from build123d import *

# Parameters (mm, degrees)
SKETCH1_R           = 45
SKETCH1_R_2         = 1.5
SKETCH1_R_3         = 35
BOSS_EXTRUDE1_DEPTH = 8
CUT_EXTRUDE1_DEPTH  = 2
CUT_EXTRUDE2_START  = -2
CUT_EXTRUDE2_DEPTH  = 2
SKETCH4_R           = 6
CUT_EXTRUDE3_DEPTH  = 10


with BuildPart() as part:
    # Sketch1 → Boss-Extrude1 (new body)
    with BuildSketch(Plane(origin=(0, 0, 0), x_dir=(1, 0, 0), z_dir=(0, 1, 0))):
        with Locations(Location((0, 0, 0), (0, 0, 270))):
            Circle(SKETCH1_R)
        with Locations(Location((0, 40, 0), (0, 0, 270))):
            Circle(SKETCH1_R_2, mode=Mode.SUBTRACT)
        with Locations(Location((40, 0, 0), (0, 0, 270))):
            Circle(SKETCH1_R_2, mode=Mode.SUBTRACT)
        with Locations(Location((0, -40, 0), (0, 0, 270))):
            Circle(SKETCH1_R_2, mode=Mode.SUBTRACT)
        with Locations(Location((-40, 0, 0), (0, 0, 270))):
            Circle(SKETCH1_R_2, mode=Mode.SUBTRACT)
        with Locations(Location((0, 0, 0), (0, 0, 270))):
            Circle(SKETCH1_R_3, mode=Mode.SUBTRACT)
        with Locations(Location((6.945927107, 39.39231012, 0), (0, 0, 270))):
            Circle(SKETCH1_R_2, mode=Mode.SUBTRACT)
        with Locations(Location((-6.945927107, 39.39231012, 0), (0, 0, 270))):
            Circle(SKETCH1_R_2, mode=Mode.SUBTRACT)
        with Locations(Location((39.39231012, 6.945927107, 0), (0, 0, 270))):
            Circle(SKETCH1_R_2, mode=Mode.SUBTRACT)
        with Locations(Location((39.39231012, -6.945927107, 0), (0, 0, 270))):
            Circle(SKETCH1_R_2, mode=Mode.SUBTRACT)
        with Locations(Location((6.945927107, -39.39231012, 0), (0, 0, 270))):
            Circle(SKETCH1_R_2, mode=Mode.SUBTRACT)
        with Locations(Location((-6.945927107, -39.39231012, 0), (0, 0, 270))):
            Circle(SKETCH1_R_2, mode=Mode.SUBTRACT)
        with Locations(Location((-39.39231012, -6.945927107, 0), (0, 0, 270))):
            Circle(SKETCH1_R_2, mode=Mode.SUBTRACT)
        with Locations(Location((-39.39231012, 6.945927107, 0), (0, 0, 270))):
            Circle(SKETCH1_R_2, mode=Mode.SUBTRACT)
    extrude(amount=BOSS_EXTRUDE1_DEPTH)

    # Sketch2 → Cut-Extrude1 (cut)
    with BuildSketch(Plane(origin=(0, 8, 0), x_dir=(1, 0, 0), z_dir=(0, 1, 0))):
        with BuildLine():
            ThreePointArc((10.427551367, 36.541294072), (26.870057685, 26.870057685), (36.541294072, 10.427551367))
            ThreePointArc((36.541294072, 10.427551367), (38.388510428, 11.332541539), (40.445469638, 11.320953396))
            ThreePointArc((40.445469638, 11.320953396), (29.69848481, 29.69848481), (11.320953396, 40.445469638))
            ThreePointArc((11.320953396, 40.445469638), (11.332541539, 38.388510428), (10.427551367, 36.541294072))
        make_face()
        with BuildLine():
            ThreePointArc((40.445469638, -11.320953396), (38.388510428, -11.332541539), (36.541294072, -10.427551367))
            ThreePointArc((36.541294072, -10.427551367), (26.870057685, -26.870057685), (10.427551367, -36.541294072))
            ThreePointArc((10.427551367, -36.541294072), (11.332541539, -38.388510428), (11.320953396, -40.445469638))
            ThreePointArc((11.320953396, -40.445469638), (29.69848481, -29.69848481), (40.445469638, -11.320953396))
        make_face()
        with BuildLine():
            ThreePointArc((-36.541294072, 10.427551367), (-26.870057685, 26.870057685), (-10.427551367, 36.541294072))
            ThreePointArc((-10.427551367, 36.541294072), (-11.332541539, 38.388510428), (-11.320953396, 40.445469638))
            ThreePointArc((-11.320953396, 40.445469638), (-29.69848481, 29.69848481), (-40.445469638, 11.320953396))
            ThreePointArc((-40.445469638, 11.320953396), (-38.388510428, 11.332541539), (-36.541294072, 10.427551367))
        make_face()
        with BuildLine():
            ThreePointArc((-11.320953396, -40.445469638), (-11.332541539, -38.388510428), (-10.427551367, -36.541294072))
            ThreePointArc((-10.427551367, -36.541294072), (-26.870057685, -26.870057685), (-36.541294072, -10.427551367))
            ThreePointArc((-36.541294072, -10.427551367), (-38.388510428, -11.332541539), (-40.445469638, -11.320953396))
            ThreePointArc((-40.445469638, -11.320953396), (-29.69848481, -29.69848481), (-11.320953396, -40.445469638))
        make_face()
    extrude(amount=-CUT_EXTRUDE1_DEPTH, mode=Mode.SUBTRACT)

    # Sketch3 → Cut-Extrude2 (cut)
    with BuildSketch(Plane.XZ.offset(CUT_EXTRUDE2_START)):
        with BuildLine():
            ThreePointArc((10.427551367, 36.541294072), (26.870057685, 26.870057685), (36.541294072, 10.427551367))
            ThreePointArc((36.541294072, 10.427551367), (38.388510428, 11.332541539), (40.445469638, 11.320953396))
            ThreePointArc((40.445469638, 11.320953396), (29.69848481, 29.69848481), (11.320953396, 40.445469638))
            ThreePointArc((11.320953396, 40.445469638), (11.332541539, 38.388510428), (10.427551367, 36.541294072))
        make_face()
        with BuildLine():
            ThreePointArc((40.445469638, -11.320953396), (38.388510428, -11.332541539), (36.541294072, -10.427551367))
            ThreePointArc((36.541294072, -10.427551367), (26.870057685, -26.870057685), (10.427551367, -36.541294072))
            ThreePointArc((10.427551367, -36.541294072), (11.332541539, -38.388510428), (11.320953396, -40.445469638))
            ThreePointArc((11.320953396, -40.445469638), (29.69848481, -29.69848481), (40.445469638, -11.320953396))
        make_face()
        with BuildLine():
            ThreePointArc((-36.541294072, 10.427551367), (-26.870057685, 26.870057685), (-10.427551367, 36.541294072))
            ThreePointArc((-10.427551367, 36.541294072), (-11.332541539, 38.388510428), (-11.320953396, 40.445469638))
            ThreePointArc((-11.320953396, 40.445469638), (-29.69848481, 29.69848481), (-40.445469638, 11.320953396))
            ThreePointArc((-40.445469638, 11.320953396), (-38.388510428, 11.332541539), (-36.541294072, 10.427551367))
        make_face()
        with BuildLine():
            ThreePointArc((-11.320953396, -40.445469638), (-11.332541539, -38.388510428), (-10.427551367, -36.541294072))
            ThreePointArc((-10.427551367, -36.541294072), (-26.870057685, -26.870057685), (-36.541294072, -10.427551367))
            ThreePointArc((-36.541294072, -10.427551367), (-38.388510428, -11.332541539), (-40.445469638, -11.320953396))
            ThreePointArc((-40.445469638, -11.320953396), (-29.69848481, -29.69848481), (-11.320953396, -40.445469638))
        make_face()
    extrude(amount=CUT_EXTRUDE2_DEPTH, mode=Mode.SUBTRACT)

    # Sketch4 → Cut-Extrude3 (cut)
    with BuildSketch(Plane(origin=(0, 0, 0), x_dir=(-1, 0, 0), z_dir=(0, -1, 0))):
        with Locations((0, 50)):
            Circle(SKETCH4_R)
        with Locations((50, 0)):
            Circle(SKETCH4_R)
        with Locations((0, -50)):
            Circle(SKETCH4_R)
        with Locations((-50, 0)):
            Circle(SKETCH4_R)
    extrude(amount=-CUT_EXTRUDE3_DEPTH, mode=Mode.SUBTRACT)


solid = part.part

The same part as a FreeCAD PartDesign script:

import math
import FreeCAD as App
import Part
import Sketcher

doc = App.newDocument("Part")
body = doc.addObject("PartDesign::Body", "Body")

sketch1 = body.newObject("Sketcher::SketchObject", "Sketch")
sketch1.AttachmentSupport = (doc.getObject("XZ_Plane"), [""])
sketch1.MapMode = "FlatFace"
sketch1.addGeometry(Part.Circle(App.Vector(0, 0, 0), App.Vector(0, 0, 1), 45), False)
sketch1.addGeometry(Part.Circle(App.Vector(-39.39231, -6.945927, 0), App.Vector(0, 0, 1), 1.5), False)
sketch1.addGeometry(Part.Circle(App.Vector(-6.945927, -39.39231, 0), App.Vector(0, 0, 1), 1.5), False)
sketch1.addGeometry(Part.Circle(App.Vector(0, -40, 0), App.Vector(0, 0, 1), 1.5), False)
sketch1.addGeometry(Part.Circle(App.Vector(-40, 0, 0), App.Vector(0, 0, 1), 1.5), False)
sketch1.addGeometry(Part.Circle(App.Vector(-39.39231, 6.945927, 0), App.Vector(0, 0, 1), 1.5), False)
sketch1.addGeometry(Part.Circle(App.Vector(-6.945927, 39.39231, 0), App.Vector(0, 0, 1), 1.5), False)
sketch1.addGeometry(Part.Circle(App.Vector(6.945927, -39.39231, 0), App.Vector(0, 0, 1), 1.5), False)
sketch1.addGeometry(Part.Circle(App.Vector(39.39231, -6.945927, 0), App.Vector(0, 0, 1), 1.5), False)
sketch1.addGeometry(Part.Circle(App.Vector(40, 0, 0), App.Vector(0, 0, 1), 1.5), False)
sketch1.addGeometry(Part.Circle(App.Vector(0, 0, 0), App.Vector(0, 0, 1), 35), False)
sketch1.addGeometry(Part.Circle(App.Vector(0, 40, 0), App.Vector(0, 0, 1), 1.5), False)
sketch1.addGeometry(Part.Circle(App.Vector(6.945927, 39.39231, 0), App.Vector(0, 0, 1), 1.5), False)
sketch1.addGeometry(Part.Circle(App.Vector(39.39231, 6.945927, 0), App.Vector(0, 0, 1), 1.5), False)
sketch1.addConstraint(Sketcher.Constraint("Coincident", 0, 3, -1, 1))
sketch1.addConstraint(Sketcher.Constraint("Coincident", 10, 3, -1, 1))
sketch1.addConstraint(Sketcher.Constraint("Equal", 1, 2))
sketch1.addConstraint(Sketcher.Constraint("Equal", 2, 3))
sketch1.addConstraint(Sketcher.Constraint("Equal", 3, 4))
sketch1.addConstraint(Sketcher.Constraint("Equal", 4, 5))
sketch1.addConstraint(Sketcher.Constraint("Equal", 5, 6))
sketch1.addConstraint(Sketcher.Constraint("Equal", 6, 7))
sketch1.addConstraint(Sketcher.Constraint("Equal", 7, 8))
sketch1.addConstraint(Sketcher.Constraint("Equal", 8, 9))
sketch1.addConstraint(Sketcher.Constraint("Equal", 9, 11))
sketch1.addConstraint(Sketcher.Constraint("Equal", 11, 12))
sketch1.addConstraint(Sketcher.Constraint("Equal", 12, 13))
sketch1.addConstraint(Sketcher.Constraint("Symmetric", 6, 3, 7, 3, -1, 1))
sketch1.addConstraint(Sketcher.Constraint("Symmetric", 5, 3, 8, 3, -1, 1))
sketch1.addConstraint(Sketcher.Constraint("Symmetric", 4, 3, 9, 3, -1, 1))
sketch1.addConstraint(Sketcher.Constraint("Symmetric", 3, 3, 11, 3, -1, 1))
sketch1.addConstraint(Sketcher.Constraint("Symmetric", 2, 3, 12, 3, -1, 1))
sketch1.addConstraint(Sketcher.Constraint("Symmetric", 1, 3, 13, 3, -1, 1))
sketch1.addConstraint(Sketcher.Constraint("Symmetric", 2, 3, 7, 3, -2))
sketch1.addConstraint(Sketcher.Constraint("Symmetric", 1, 3, 8, 3, -2))
sketch1.addConstraint(Sketcher.Constraint("PointOnObject", 3, 3, -2))
sketch1.addConstraint(Sketcher.Constraint("PointOnObject", 4, 3, -1))
sketch1.addConstraint(Sketcher.Constraint("Diameter", 0, 90.0))
sketch1.addConstraint(Sketcher.Constraint("Diameter", 1, 3.0))
sketch1.addConstraint(Sketcher.Constraint("Diameter", 10, 70.0))
sketch1.addConstraint(Sketcher.Constraint("DistanceY", 3, 3, -1, 1, 40.0))
sketch1.addConstraint(Sketcher.Constraint("DistanceX", 4, 3, -1, 1, 40.0))
sketch1.addConstraint(Sketcher.Constraint("DistanceX", 1, 3, -1, 1, 39.39231))
sketch1.addConstraint(Sketcher.Constraint("DistanceY", 2, 3, -1, 1, 39.39231))
sketch1.addConstraint(Sketcher.Constraint("DistanceY", 1, 3, -1, 1, 6.945927))
sketch1.addConstraint(Sketcher.Constraint("DistanceX", 2, 3, -1, 1, 6.945927))
pad1 = body.newObject("PartDesign::Pad", "Pad")
pad1.Profile = sketch1
pad1.Length = 8
pad1.Reversed = True

sketch2 = body.newObject("Sketcher::SketchObject", "Sketch001")
sketch2.AttachmentSupport = (doc.getObject("XZ_Plane"), [""])
sketch2.MapMode = "FlatFace"
sketch2.AttachmentOffset = App.Placement(App.Vector(0, 0, -8), App.Rotation())
sketch2.addGeometry(Part.ArcOfCircle(Part.Circle(App.Vector(0, 0, 0), App.Vector(0, 0, 1), 38), math.radians(-74.073188), math.radians(-15.926812)), False)
sketch2.addGeometry(Part.ArcOfCircle(Part.Circle(App.Vector(39.39231, -6.945927, 0), App.Vector(0, 0, 1), 4.5), math.radians(-129.313199), math.radians(-76.465227)), False)
sketch2.addGeometry(Part.ArcOfCircle(Part.Circle(App.Vector(0, 0, 0), App.Vector(0, 0, 1), 42), math.radians(-74.362717), math.radians(-15.637283)), False)
sketch2.addGeometry(Part.ArcOfCircle(Part.Circle(App.Vector(6.945927, -39.39231, 0), App.Vector(0, 0, 1), 4.5), math.radians(-13.534773), math.radians(39.313199)), False)
sketch2.addGeometry(Part.ArcOfCircle(Part.Circle(App.Vector(39.39231, 6.945927, 0), App.Vector(0, 0, 1), 4.5), math.radians(76.465227), math.radians(129.313199)), False)
sketch2.addGeometry(Part.ArcOfCircle(Part.Circle(App.Vector(0, 0, 0), App.Vector(0, 0, 1), 38), math.radians(15.926812), math.radians(74.073188)), False)
sketch2.addGeometry(Part.ArcOfCircle(Part.Circle(App.Vector(6.945927, 39.39231, 0), App.Vector(0, 0, 1), 4.5), math.radians(-39.313199), math.radians(13.534773)), False)
sketch2.addGeometry(Part.ArcOfCircle(Part.Circle(App.Vector(0, 0, 0), App.Vector(0, 0, 1), 42), math.radians(15.637283), math.radians(74.362717)), False)
sketch2.addGeometry(Part.ArcOfCircle(Part.Circle(App.Vector(0, 0, 0), App.Vector(0, 0, 1), 38), math.radians(-164.073188), math.radians(-105.926812)), False)
sketch2.addGeometry(Part.ArcOfCircle(Part.Circle(App.Vector(-6.945927, -39.39231, 0), App.Vector(0, 0, 1), 4.5), math.radians(140.686801), math.radians(193.534773)), False)
sketch2.addGeometry(Part.ArcOfCircle(Part.Circle(App.Vector(0, 0, 0), App.Vector(0, 0, 1), 42), math.radians(-164.362717), math.radians(-105.637283)), False)
sketch2.addGeometry(Part.ArcOfCircle(Part.Circle(App.Vector(-39.39231, -6.945927, 0), App.Vector(0, 0, 1), 4.5), math.radians(-103.534773), math.radians(-50.686801)), False)
sketch2.addGeometry(Part.ArcOfCircle(Part.Circle(App.Vector(-6.945927, 39.39231, 0), App.Vector(0, 0, 1), 4.5), math.radians(166.465227), math.radians(219.313199)), False)
sketch2.addGeometry(Part.ArcOfCircle(Part.Circle(App.Vector(0, 0, 0), App.Vector(0, 0, 1), 38), math.radians(105.926812), math.radians(164.073188)), False)
sketch2.addGeometry(Part.ArcOfCircle(Part.Circle(App.Vector(-39.39231, 6.945927, 0), App.Vector(0, 0, 1), 4.5), math.radians(50.686801), math.radians(103.534773)), False)
sketch2.addGeometry(Part.ArcOfCircle(Part.Circle(App.Vector(0, 0, 0), App.Vector(0, 0, 1), 42), math.radians(105.637283), math.radians(164.362717)), False)
sketch2.addConstraint(Sketcher.Constraint("Coincident", 0, 2, 1, 1))
sketch2.addConstraint(Sketcher.Constraint("Coincident", 1, 2, 2, 2))
sketch2.addConstraint(Sketcher.Constraint("Coincident", 2, 1, 3, 1))
sketch2.addConstraint(Sketcher.Constraint("Coincident", 3, 2, 0, 1))
sketch2.addConstraint(Sketcher.Constraint("Coincident", 4, 2, 5, 1))
sketch2.addConstraint(Sketcher.Constraint("Coincident", 5, 2, 6, 1))
sketch2.addConstraint(Sketcher.Constraint("Coincident", 6, 2, 7, 2))
sketch2.addConstraint(Sketcher.Constraint("Coincident", 7, 1, 4, 1))
sketch2.addConstraint(Sketcher.Constraint("Coincident", 8, 2, 9, 1))
sketch2.addConstraint(Sketcher.Constraint("Coincident", 9, 2, 10, 2))
sketch2.addConstraint(Sketcher.Constraint("Coincident", 10, 1, 11, 1))
sketch2.addConstraint(Sketcher.Constraint("Coincident", 11, 2, 8, 1))
sketch2.addConstraint(Sketcher.Constraint("Coincident", 12, 2, 13, 1))
sketch2.addConstraint(Sketcher.Constraint("Coincident", 13, 2, 14, 1))
sketch2.addConstraint(Sketcher.Constraint("Coincident", 14, 2, 15, 2))
sketch2.addConstraint(Sketcher.Constraint("Coincident", 15, 1, 12, 1))
sketch2.addConstraint(Sketcher.Constraint("Coincident", 0, 3, -1, 1))
sketch2.addConstraint(Sketcher.Constraint("Coincident", 2, 3, -1, 1))
sketch2.addConstraint(Sketcher.Constraint("Coincident", 5, 3, -1, 1))
sketch2.addConstraint(Sketcher.Constraint("Coincident", 7, 3, -1, 1))
sketch2.addConstraint(Sketcher.Constraint("Coincident", 8, 3, -1, 1))
sketch2.addConstraint(Sketcher.Constraint("Coincident", 10, 3, -1, 1))
sketch2.addConstraint(Sketcher.Constraint("Coincident", 13, 3, -1, 1))
sketch2.addConstraint(Sketcher.Constraint("Coincident", 15, 3, -1, 1))
sketch2.addConstraint(Sketcher.Constraint("Equal", 1, 3))
sketch2.addConstraint(Sketcher.Constraint("Equal", 3, 4))
sketch2.addConstraint(Sketcher.Constraint("Equal", 0, 5))
sketch2.addConstraint(Sketcher.Constraint("Equal", 4, 6))
sketch2.addConstraint(Sketcher.Constraint("Equal", 2, 7))
sketch2.addConstraint(Sketcher.Constraint("Equal", 5, 8))
sketch2.addConstraint(Sketcher.Constraint("Equal", 6, 9))
sketch2.addConstraint(Sketcher.Constraint("Equal", 7, 10))
sketch2.addConstraint(Sketcher.Constraint("Equal", 9, 11))
sketch2.addConstraint(Sketcher.Constraint("Equal", 11, 12))
sketch2.addConstraint(Sketcher.Constraint("Equal", 8, 13))
sketch2.addConstraint(Sketcher.Constraint("Equal", 12, 14))
sketch2.addConstraint(Sketcher.Constraint("Equal", 10, 15))
sketch2.addConstraint(Sketcher.Constraint("Symmetric", 6, 3, 9, 3, -1, 1))
sketch2.addConstraint(Sketcher.Constraint("Symmetric", 4, 3, 11, 3, -1, 1))
sketch2.addConstraint(Sketcher.Constraint("Symmetric", 3, 3, 12, 3, -1, 1))
sketch2.addConstraint(Sketcher.Constraint("Symmetric", 1, 3, 14, 3, -1, 1))
sketch2.addConstraint(Sketcher.Constraint("Symmetric", 3, 3, 9, 3, -2))
sketch2.addConstraint(Sketcher.Constraint("Symmetric", 1, 3, 11, 3, -2))
sketch2.addConstraint(Sketcher.Constraint("Radius", 0, 38.0))
sketch2.addConstraint(Sketcher.Constraint("Radius", 2, 42.0))
sketch2.addConstraint(Sketcher.Constraint("Radius", 1, 4.5))
sketch2.addConstraint(Sketcher.Constraint("DistanceX", -1, 1, 1, 3, 39.39231))
sketch2.addConstraint(Sketcher.Constraint("DistanceY", 3, 3, -1, 1, 39.39231))
sketch2.addConstraint(Sketcher.Constraint("DistanceY", 0, 2, -1, 1, 10.427551))
sketch2.addConstraint(Sketcher.Constraint("DistanceY", 2, 1, -1, 1, 40.44547))
pocket1 = body.newObject("PartDesign::Pocket", "Pocket")
pocket1.Profile = sketch2
pocket1.Length = 2
pocket1.Reversed = True

sketch3 = body.newObject("Sketcher::SketchObject", "Sketch002")
sketch3.AttachmentSupport = (doc.getObject("XZ_Plane"), [""])
sketch3.MapMode = "FlatFace"
sketch3.AttachmentOffset = App.Placement(App.Vector(0, 0, -2), App.Rotation())
sketch3.addGeometry(Part.ArcOfCircle(Part.Circle(App.Vector(0, 0, 0), App.Vector(0, 0, 1), 38), math.radians(15.926812), math.radians(74.073188)), False)
sketch3.addGeometry(Part.ArcOfCircle(Part.Circle(App.Vector(39.39231, 6.945927, 0), App.Vector(0, 0, 1), 4.5), math.radians(76.465227), math.radians(129.313199)), False)
sketch3.addGeometry(Part.ArcOfCircle(Part.Circle(App.Vector(0, 0, 0), App.Vector(0, 0, 1), 42), math.radians(15.637283), math.radians(74.362717)), False)
sketch3.addGeometry(Part.ArcOfCircle(Part.Circle(App.Vector(6.945927, 39.39231, 0), App.Vector(0, 0, 1), 4.5), math.radians(-39.313199), math.radians(13.534773)), False)
sketch3.addGeometry(Part.ArcOfCircle(Part.Circle(App.Vector(39.39231, -6.945927, 0), App.Vector(0, 0, 1), 4.5), math.radians(-129.313199), math.radians(-76.465227)), False)
sketch3.addGeometry(Part.ArcOfCircle(Part.Circle(App.Vector(0, 0, 0), App.Vector(0, 0, 1), 38), math.radians(-74.073188), math.radians(-15.926812)), False)
sketch3.addGeometry(Part.ArcOfCircle(Part.Circle(App.Vector(6.945927, -39.39231, 0), App.Vector(0, 0, 1), 4.5), math.radians(-13.534773), math.radians(39.313199)), False)
sketch3.addGeometry(Part.ArcOfCircle(Part.Circle(App.Vector(0, 0, 0), App.Vector(0, 0, 1), 42), math.radians(-74.362717), math.radians(-15.637283)), False)
sketch3.addGeometry(Part.ArcOfCircle(Part.Circle(App.Vector(0, 0, 0), App.Vector(0, 0, 1), 38), math.radians(105.926812), math.radians(164.073188)), False)
sketch3.addGeometry(Part.ArcOfCircle(Part.Circle(App.Vector(-6.945927, 39.39231, 0), App.Vector(0, 0, 1), 4.5), math.radians(166.465227), math.radians(219.313199)), False)
sketch3.addGeometry(Part.ArcOfCircle(Part.Circle(App.Vector(0, 0, 0), App.Vector(0, 0, 1), 42), math.radians(105.637283), math.radians(164.362717)), False)
sketch3.addGeometry(Part.ArcOfCircle(Part.Circle(App.Vector(-39.39231, 6.945927, 0), App.Vector(0, 0, 1), 4.5), math.radians(50.686801), math.radians(103.534773)), False)
sketch3.addGeometry(Part.ArcOfCircle(Part.Circle(App.Vector(-6.945927, -39.39231, 0), App.Vector(0, 0, 1), 4.5), math.radians(140.686801), math.radians(193.534773)), False)
sketch3.addGeometry(Part.ArcOfCircle(Part.Circle(App.Vector(0, 0, 0), App.Vector(0, 0, 1), 38), math.radians(-164.073188), math.radians(-105.926812)), False)
sketch3.addGeometry(Part.ArcOfCircle(Part.Circle(App.Vector(-39.39231, -6.945927, 0), App.Vector(0, 0, 1), 4.5), math.radians(-103.534773), math.radians(-50.686801)), False)
sketch3.addGeometry(Part.ArcOfCircle(Part.Circle(App.Vector(0, 0, 0), App.Vector(0, 0, 1), 42), math.radians(-164.362717), math.radians(-105.637283)), False)
sketch3.addConstraint(Sketcher.Constraint("Coincident", 0, 1, 1, 2))
sketch3.addConstraint(Sketcher.Constraint("Coincident", 1, 1, 2, 1))
sketch3.addConstraint(Sketcher.Constraint("Coincident", 2, 2, 3, 2))
sketch3.addConstraint(Sketcher.Constraint("Coincident", 3, 1, 0, 2))
sketch3.addConstraint(Sketcher.Constraint("Coincident", 4, 1, 5, 2))
sketch3.addConstraint(Sketcher.Constraint("Coincident", 5, 1, 6, 2))
sketch3.addConstraint(Sketcher.Constraint("Coincident", 6, 1, 7, 1))
sketch3.addConstraint(Sketcher.Constraint("Coincident", 7, 2, 4, 2))
sketch3.addConstraint(Sketcher.Constraint("Coincident", 8, 1, 9, 2))
sketch3.addConstraint(Sketcher.Constraint("Coincident", 9, 1, 10, 1))
sketch3.addConstraint(Sketcher.Constraint("Coincident", 10, 2, 11, 2))
sketch3.addConstraint(Sketcher.Constraint("Coincident", 11, 1, 8, 2))
sketch3.addConstraint(Sketcher.Constraint("Coincident", 12, 1, 13, 2))
sketch3.addConstraint(Sketcher.Constraint("Coincident", 13, 1, 14, 2))
sketch3.addConstraint(Sketcher.Constraint("Coincident", 14, 1, 15, 1))
sketch3.addConstraint(Sketcher.Constraint("Coincident", 15, 2, 12, 2))
sketch3.addConstraint(Sketcher.Constraint("Coincident", 0, 3, -1, 1))
sketch3.addConstraint(Sketcher.Constraint("Coincident", 2, 3, -1, 1))
sketch3.addConstraint(Sketcher.Constraint("Coincident", 5, 3, -1, 1))
sketch3.addConstraint(Sketcher.Constraint("Coincident", 7, 3, -1, 1))
sketch3.addConstraint(Sketcher.Constraint("Coincident", 8, 3, -1, 1))
sketch3.addConstraint(Sketcher.Constraint("Coincident", 10, 3, -1, 1))
sketch3.addConstraint(Sketcher.Constraint("Coincident", 13, 3, -1, 1))
sketch3.addConstraint(Sketcher.Constraint("Coincident", 15, 3, -1, 1))
sketch3.addConstraint(Sketcher.Constraint("Equal", 1, 3))
sketch3.addConstraint(Sketcher.Constraint("Equal", 3, 4))
sketch3.addConstraint(Sketcher.Constraint("Equal", 0, 5))
sketch3.addConstraint(Sketcher.Constraint("Equal", 4, 6))
sketch3.addConstraint(Sketcher.Constraint("Equal", 2, 7))
sketch3.addConstraint(Sketcher.Constraint("Equal", 5, 8))
sketch3.addConstraint(Sketcher.Constraint("Equal", 6, 9))
sketch3.addConstraint(Sketcher.Constraint("Equal", 7, 10))
sketch3.addConstraint(Sketcher.Constraint("Equal", 9, 11))
sketch3.addConstraint(Sketcher.Constraint("Equal", 11, 12))
sketch3.addConstraint(Sketcher.Constraint("Equal", 8, 13))
sketch3.addConstraint(Sketcher.Constraint("Equal", 12, 14))
sketch3.addConstraint(Sketcher.Constraint("Equal", 10, 15))
sketch3.addConstraint(Sketcher.Constraint("Symmetric", 6, 3, 9, 3, -1, 1))
sketch3.addConstraint(Sketcher.Constraint("Symmetric", 4, 3, 11, 3, -1, 1))
sketch3.addConstraint(Sketcher.Constraint("Symmetric", 3, 3, 12, 3, -1, 1))
sketch3.addConstraint(Sketcher.Constraint("Symmetric", 1, 3, 14, 3, -1, 1))
sketch3.addConstraint(Sketcher.Constraint("Symmetric", 3, 3, 9, 3, -2))
sketch3.addConstraint(Sketcher.Constraint("Symmetric", 1, 3, 11, 3, -2))
sketch3.addConstraint(Sketcher.Constraint("Radius", 0, 38.0))
sketch3.addConstraint(Sketcher.Constraint("Radius", 2, 42.0))
sketch3.addConstraint(Sketcher.Constraint("Radius", 1, 4.5))
sketch3.addConstraint(Sketcher.Constraint("DistanceX", -1, 1, 1, 3, 39.39231))
sketch3.addConstraint(Sketcher.Constraint("DistanceY", -1, 1, 3, 3, 39.39231))
sketch3.addConstraint(Sketcher.Constraint("DistanceY", -1, 1, 0, 1, 10.427551))
sketch3.addConstraint(Sketcher.Constraint("DistanceY", -1, 1, 2, 2, 40.44547))
pocket2 = body.newObject("PartDesign::Pocket", "Pocket001")
pocket2.Profile = sketch3
pocket2.Length = 2
pocket2.Reversed = True

sketch4 = body.newObject("Sketcher::SketchObject", "Sketch003")
sketch4.AttachmentSupport = (doc.getObject("XZ_Plane"), [""])
sketch4.MapMode = "FlatFace"
sketch4.addGeometry(Part.Circle(App.Vector(0, -50, 0), App.Vector(0, 0, 1), 6), False)
sketch4.addGeometry(Part.Circle(App.Vector(-50, 0, 0), App.Vector(0, 0, 1), 6), False)
sketch4.addGeometry(Part.Circle(App.Vector(0, 50, 0), App.Vector(0, 0, 1), 6), False)
sketch4.addGeometry(Part.Circle(App.Vector(50, 0, 0), App.Vector(0, 0, 1), 6), False)
sketch4.addConstraint(Sketcher.Constraint("Equal", 0, 1))
sketch4.addConstraint(Sketcher.Constraint("Equal", 1, 2))
sketch4.addConstraint(Sketcher.Constraint("Equal", 2, 3))
sketch4.addConstraint(Sketcher.Constraint("Symmetric", 0, 3, 2, 3, -1, 1))
sketch4.addConstraint(Sketcher.Constraint("Symmetric", 1, 3, 3, 3, -1, 1))
sketch4.addConstraint(Sketcher.Constraint("PointOnObject", 0, 3, -2))
sketch4.addConstraint(Sketcher.Constraint("PointOnObject", 1, 3, -1))
sketch4.addConstraint(Sketcher.Constraint("Diameter", 0, 12.0))
sketch4.addConstraint(Sketcher.Constraint("DistanceY", 0, 3, -1, 1, 50.0))
sketch4.addConstraint(Sketcher.Constraint("DistanceX", 1, 3, -1, 1, 50.0))
pocket3 = body.newObject("PartDesign::Pocket", "Pocket002")
pocket3.Profile = sketch4
pocket3.Length = 10

doc.recompute()
